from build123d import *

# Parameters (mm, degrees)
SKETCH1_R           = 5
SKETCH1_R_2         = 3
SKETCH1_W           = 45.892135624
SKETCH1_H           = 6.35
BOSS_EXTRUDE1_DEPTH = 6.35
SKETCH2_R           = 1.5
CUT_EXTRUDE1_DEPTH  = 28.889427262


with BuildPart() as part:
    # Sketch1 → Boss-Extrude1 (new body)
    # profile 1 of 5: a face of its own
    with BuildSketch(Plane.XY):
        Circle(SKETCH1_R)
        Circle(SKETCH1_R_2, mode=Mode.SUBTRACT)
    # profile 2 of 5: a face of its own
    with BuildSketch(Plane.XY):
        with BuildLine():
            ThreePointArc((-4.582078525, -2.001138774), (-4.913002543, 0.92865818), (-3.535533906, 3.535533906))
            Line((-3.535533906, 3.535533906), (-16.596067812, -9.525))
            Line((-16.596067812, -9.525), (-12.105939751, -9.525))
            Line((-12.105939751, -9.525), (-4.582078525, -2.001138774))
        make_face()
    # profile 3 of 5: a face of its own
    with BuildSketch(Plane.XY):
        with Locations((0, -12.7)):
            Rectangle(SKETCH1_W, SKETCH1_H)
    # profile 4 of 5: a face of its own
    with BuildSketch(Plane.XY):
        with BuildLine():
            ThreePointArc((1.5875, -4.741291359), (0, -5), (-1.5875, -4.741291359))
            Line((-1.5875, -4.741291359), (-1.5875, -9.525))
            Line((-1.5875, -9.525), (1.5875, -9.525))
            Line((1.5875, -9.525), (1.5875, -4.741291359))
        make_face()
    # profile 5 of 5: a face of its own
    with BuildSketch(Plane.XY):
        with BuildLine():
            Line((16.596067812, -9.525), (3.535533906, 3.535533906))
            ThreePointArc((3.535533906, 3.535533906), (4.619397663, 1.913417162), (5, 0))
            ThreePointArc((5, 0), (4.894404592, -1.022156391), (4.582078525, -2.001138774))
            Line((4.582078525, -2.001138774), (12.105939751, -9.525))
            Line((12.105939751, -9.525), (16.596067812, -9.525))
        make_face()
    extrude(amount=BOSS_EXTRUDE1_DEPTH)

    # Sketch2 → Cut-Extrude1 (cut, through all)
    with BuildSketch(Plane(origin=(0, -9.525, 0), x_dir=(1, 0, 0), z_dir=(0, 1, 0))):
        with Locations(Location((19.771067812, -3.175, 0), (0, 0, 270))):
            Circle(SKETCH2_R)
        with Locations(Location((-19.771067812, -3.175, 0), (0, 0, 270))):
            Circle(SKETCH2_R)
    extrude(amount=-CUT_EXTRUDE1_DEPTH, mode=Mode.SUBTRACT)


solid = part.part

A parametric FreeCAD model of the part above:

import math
import FreeCAD as App
import Part
import Sketcher

V = App.Vector
Q = App.Units.Quantity

doc = App.newDocument("Part")
body = doc.addObject("PartDesign::Body", "Body")

# Sketch on XY plane
sketch1 = doc.addObject("Sketcher::SketchObject", "Sketch")
body.addObject(sketch1)
sketch1.AttachmentSupport = (doc.XY_Plane, [""])
sketch1.MapMode = "FlatFace"
sketch1.addGeometry(Part.ArcOfCircle(Part.Circle(V(0, 0, 0), V(0, 0, 1), 5), math.radians(45), math.radians(135)), False)
sketch1.addGeometry(Part.LineSegment(V(-3.535534, 3.535534, 0), V(-16.596068, -9.525, 0)), False)
sketch1.addGeometry(Part.LineSegment(V(-16.596068, -9.525, 0), V(-22.946068, -9.525, 0)), False)
sketch1.addGeometry(Part.LineSegment(V(-22.946068, -9.525, 0), V(-22.946068, -15.875, 0)), False)
sketch1.addGeometry(Part.LineSegment(V(-22.946068, -15.875, 0), V(22.946068, -15.875, 0)), False)
sketch1.addGeometry(Part.LineSegment(V(22.946068, -15.875, 0), V(22.946068, -9.525, 0)), False)
sketch1.addGeometry(Part.LineSegment(V(22.946068, -9.525, 0), V(16.596068, -9.525, 0)), False)
sketch1.addGeometry(Part.LineSegment(V(16.596068, -9.525, 0), V(3.535534, 3.535534, 0)), False)
sketch1.addGeometry(Part.ArcOfCircle(Part.Circle(V(0, 0, 0), V(0, 0, 1), 5), math.radians(-156.407583), math.radians(-108.511803)), False)
sketch1.addGeometry(Part.LineSegment(V(-1.5875, -4.741291, 0), V(-1.5875, -9.525, 0)), False)
sketch1.addGeometry(Part.LineSegment(V(-1.5875, -9.525, 0), V(-12.10594, -9.525, 0)), False)
sketch1.addGeometry(Part.LineSegment(V(-12.10594, -9.525, 0), V(-4.582079, -2.001139, 0)), False)
sketch1.addGeometry(Part.ArcOfCircle(Part.Circle(V(0, 0, 0), V(0, 0, 1), 5), math.radians(-71.488197), math.radians(-23.592417)), False)
sketch1.addGeometry(Part.LineSegment(V(4.582079, -2.001139, 0), V(12.10594, -9.525, 0)), False)
sketch1.addGeometry(Part.LineSegment(V(12.10594, -9.525, 0), V(1.5875, -9.525, 0)), False)
sketch1.addGeometry(Part.LineSegment(V(1.5875, -9.525, 0), V(1.5875, -4.741291, 0)), False)
sketch1.addGeometry(Part.Circle(V(0, 0, 0), V(0, 0, 1), 3), False)
sketch1.addConstraint(Sketcher.Constraint("Tangent", 0, 2, 1, 1))
sketch1.addConstraint(Sketcher.Constraint("Coincident", 1, 2, 2, 1))
sketch1.addConstraint(Sketcher.Constraint("Coincident", 2, 2, 3, 1))
sketch1.addConstraint(Sketcher.Constraint("Coincident", 3, 2, 4, 1))
sketch1.addConstraint(Sketcher.Constraint("Coincident", 4, 2, 5, 1))
sketch1.addConstraint(Sketcher.Constraint("Coincident", 5, 2, 6, 1))
sketch1.addConstraint(Sketcher.Constraint("Coincident", 6, 2, 7, 1))
sketch1.addConstraint(Sketcher.Constraint("Tangent", 7, 2, 0, 1))
sketch1.addConstraint(Sketcher.Constraint("Coincident", 8, 2, 9, 1))
sketch1.addConstraint(Sketcher.Constraint("Coincident", 9, 2, 10, 1))
sketch1.addConstraint(Sketcher.Constraint("Coincident", 10, 2, 11, 1))
sketch1.addConstraint(Sketcher.Constraint("Coincident", 11, 2, 8, 1))
sketch1.addConstraint(Sketcher.Constraint("Coincident", 12, 2, 13, 1))
sketch1.addConstraint(Sketcher.Constraint("Coincident", 13, 2, 14, 1))
sketch1.addConstraint(Sketcher.Constraint("Coincident", 14, 2, 15, 1))
sketch1.addConstraint(Sketcher.Constraint("Coincident", 15, 2, 12, 1))
sketch1.addConstraint(Sketcher.Constraint("Horizontal", 2))
sketch1.addConstraint(Sketcher.Constraint("Vertical", 3))
sketch1.addConstraint(Sketcher.Constraint("Horizontal", 4))
sketch1.addConstraint(Sketcher.Constraint("Vertical", 5))
sketch1.addConstraint(Sketcher.Constraint("Horizontal", 6))
sketch1.addConstraint(Sketcher.Constraint("Vertical", 9))
sketch1.addConstraint(Sketcher.Constraint("Horizontal", 10))
sketch1.addConstraint(Sketcher.Constraint("Horizontal", 14))
sketch1.addConstraint(Sketcher.Constraint("Vertical", 15))
sketch1.addConstraint(Sketcher.Constraint("Coincident", 0, 3, -1, 1))
sketch1.addConstraint(Sketcher.Constraint("Coincident", 8, 3, -1, 1))
sketch1.addConstraint(Sketcher.Constraint("Coincident", 12, 3, -1, 1))
sketch1.addConstraint(Sketcher.Constraint("Coincident", 16, 3, -1, 1))
sketch1.addConstraint(Sketcher.Constraint("Equal", 0, 8))
sketch1.addConstraint(Sketcher.Constraint("Equal", 8, 12))
sketch1.addConstraint(Sketcher.Constraint("Symmetric", 2, 2, 5, 2, -2))
sketch1.addConstraint(Sketcher.Constraint("Symmetric", 10, 2, 13, 2, -2))
sketch1.addConstraint(Sketcher.Constraint("Perpendicular", 1, 7))
sketch1.addConstraint(Sketcher.Constraint("Perpendicular", 7, 11))
sketch1.addConstraint(Sketcher.Constraint("Perpendicular", 11, 13))
sketch1.addConstraint(Sketcher.Constraint("Horizontal", 0, 2, 7, 2))
sketch1.addConstraint(Sketcher.Constraint("Horizontal", 6, 2, 9, 2))
sketch1.addConstraint(Sketcher.Constraint("Horizontal", 8, 2, 15, 2))
sketch1.addConstraint(Sketcher.Constraint("Equal", 6, 3))
sketch1.addConstraint(Sketcher.Constraint("Diameter", 16, Q("6 mm")))
sketch1.addConstraint(Sketcher.Constraint("Radius", 0, Q("5 mm")))
sketch1.addConstraint(Sketcher.Constraint("DistanceX", 2, 2, 2, 1, Q("6.35 mm")))
sketch1.addConstraint(Sketcher.Constraint("DistanceY", 1, 2, -1, 1, Q("9.525 mm")))
sketch1.addConstraint(Sketcher.Constraint("DistanceX", 9, 2, 14, 2, Q("3.175 mm")))
sketch1.addConstraint(Sketcher.Constraint("DistanceX", 10, 2, 10, 1, Q("10.51844 mm")))
pad1 = doc.addObject("PartDesign::Pad", "Pad")
body.addObject(pad1)
pad1.Profile = sketch1
pad1.Length = 6.35

# Sketch on XZ plane
sketch2 = doc.addObject("Sketcher::SketchObject", "Sketch001")
body.addObject(sketch2)
sketch2.AttachmentSupport = (doc.XZ_Plane, [""])
sketch2.MapMode = "FlatFace"
sketch2.AttachmentOffset = App.Placement(V(0, 0, 9.525), App.Rotation())
sketch2.addGeometry(Part.Circle(V(19.771068, 3.175, 0), V(0, 0, 1), 1.5), False)
sketch2.addGeometry(Part.Circle(V(-19.771068, 3.175, 0), V(0, 0, 1), 1.5), False)
sketch2.addConstraint(Sketcher.Constraint("Equal", 0, 1))
sketch2.addConstraint(Sketcher.Constraint("Symmetric", 0, 3, 1, 3, -2))
sketch2.addConstraint(Sketcher.Constraint("Diameter", 0, Q("3 mm")))
sketch2.addConstraint(Sketcher.Constraint("DistanceY", -1, 1, 0, 3, Q("3.175 mm")))
sketch2.addConstraint(Sketcher.Constraint("DistanceX", -1, 1, 0, 3, Q("19.771068 mm")))
pocket1 = doc.addObject("PartDesign::Pocket", "Pocket")
body.addObject(pocket1)
pocket1.Profile = sketch2
pocket1.Type = "ThroughAll"
pocket1.Reversed = True

doc.recompute()
